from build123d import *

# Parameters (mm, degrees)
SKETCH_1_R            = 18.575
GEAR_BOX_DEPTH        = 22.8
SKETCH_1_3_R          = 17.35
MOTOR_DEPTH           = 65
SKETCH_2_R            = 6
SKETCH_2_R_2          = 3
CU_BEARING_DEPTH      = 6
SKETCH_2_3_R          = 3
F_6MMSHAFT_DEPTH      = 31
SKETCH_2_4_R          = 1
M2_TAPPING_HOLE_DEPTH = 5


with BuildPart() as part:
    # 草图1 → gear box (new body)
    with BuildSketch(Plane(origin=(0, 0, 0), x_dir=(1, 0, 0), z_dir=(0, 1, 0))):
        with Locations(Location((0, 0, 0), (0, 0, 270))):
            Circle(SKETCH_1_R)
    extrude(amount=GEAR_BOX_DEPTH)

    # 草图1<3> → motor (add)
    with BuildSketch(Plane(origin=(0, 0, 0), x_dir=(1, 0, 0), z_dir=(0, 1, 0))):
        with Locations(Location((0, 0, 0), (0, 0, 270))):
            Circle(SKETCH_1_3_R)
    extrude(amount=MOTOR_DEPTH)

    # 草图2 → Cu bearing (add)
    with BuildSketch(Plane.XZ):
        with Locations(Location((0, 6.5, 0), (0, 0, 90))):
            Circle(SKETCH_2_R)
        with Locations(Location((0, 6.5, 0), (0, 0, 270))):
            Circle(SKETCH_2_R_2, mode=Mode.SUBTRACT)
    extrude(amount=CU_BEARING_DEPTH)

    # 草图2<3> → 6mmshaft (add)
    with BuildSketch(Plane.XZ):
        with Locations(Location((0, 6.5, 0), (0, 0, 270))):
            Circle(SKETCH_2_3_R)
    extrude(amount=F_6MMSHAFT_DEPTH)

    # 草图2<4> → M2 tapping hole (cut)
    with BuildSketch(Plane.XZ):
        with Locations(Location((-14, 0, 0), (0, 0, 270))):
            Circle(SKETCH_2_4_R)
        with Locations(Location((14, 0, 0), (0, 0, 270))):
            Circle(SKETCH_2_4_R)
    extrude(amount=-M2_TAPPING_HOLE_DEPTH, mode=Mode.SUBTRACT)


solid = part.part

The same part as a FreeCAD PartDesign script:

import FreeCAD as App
import Part
import Sketcher
from FreeCAD import Vector

doc = App.newDocument("Part")
body = doc.addObject("PartDesign::Body", "Body")

# Sketch on XZ plane
sketch1 = body.newObject("Sketcher::SketchObject", "Sketch")
sketch1.AttachmentSupport = (doc.getObject("XZ_Plane"), [""])
sketch1.MapMode = "FlatFace"
sketch1.addGeometry(Part.Circle(Vector(0, 0, 0), Vector(0, 0, 1), 18.575), False)
sketch1.addConstraint([
    Sketcher.Constraint("Coincident", 0, 3, -1, 1),
    Sketcher.Constraint("Diameter", 0, 37.15),
])
pad1 = body.newObject("PartDesign::Pad", "Pad")
pad1.Profile = sketch1
pad1.Length = 22.8
pad1.Reversed = True

# Sketch on XZ plane
sketch2 = body.newObject("Sketcher::SketchObject", "Sketch001")
sketch2.AttachmentSupport = (doc.getObject("XZ_Plane"), [""])
sketch2.MapMode = "FlatFace"
sketch2.addGeometry(Part.Circle(Vector(0, 0, 0), Vector(0, 0, 1), 17.35), False)
sketch2.addConstraint([
    Sketcher.Constraint("Coincident", 0, 3, -1, 1),
    Sketcher.Constraint("Diameter", 0, 34.7),
])
pad2 = body.newObject("PartDesign::Pad", "Pad001")
pad2.Profile = sketch2
pad2.Length = 65
pad2.Reversed = True

# Sketch on XZ plane
sketch3 = body.newObject("Sketcher::SketchObject", "Sketch002")
sketch3.AttachmentSupport = (doc.getObject("XZ_Plane"), [""])
sketch3.MapMode = "FlatFace"
sketch3.addGeometry([
    Part.Circle(Vector(0, 6.5, 0), Vector(0, 0, 1), 6),
    Part.Circle(Vector(0, 6.5, 0), Vector(0, 0, 1), 3),
], False)
sketch3.addConstraint([
    Sketcher.Constraint("Coincident", 1, 3, 0, 3),
    Sketcher.Constraint("PointOnObject", 0, 3, -2),
    Sketcher.Constraint("Diameter", 0, 12.0),
    Sketcher.Constraint("Diameter", 1, 6.0),
    Sketcher.Constraint("DistanceY", -1, 1, 0, 3, 6.5),
])
pad3 = body.newObject("PartDesign::Pad", "Pad002")
pad3.Profile = sketch3
pad3.Length = 6

# Sketch on XZ plane
sketch4 = body.newObject("Sketcher::SketchObject", "Sketch003")
sketch4.AttachmentSupport = (doc.getObject("XZ_Plane"), [""])
sketch4.MapMode = "FlatFace"
sketch4.addGeometry(Part.Circle(Vector(0, 6.5, 0), Vector(0, 0, 1), 3), False)
sketch4.addConstraint([
    Sketcher.Constraint("PointOnObject", 0, 3, -2),
    Sketcher.Constraint("Diameter", 0, 6.0),
    Sketcher.Constraint("DistanceY", -1, 1, 0, 3, 6.5),
])
pad4 = body.newObject("PartDesign::Pad", "Pad003")
pad4.Profile = sketch4
pad4.Length = 31

# Sketch on XZ plane
sketch5 = body.newObject("Sketcher::SketchObject", "Sketch004")
sketch5.AttachmentSupport = (doc.getObject("XZ_Plane"), [""])
sketch5.MapMode = "FlatFace"
sketch5.addGeometry([
    Part.Circle(Vector(-14, 0, 0), Vector(0, 0, 1), 1),
    Part.Circle(Vector(14, 0, 0), Vector(0, 0, 1), 1),
], False)
sketch5.addConstraint([
    Sketcher.Constraint("Equal", 0, 1),
    Sketcher.Constraint("Symmetric", 0, 3, 1, 3, -1, 1),
    Sketcher.Constraint("PointOnObject", 0, 3, -1),
    Sketcher.Constraint("Diameter", 0, 2.0),
    Sketcher.Constraint("DistanceX", 0, 3, -1, 1, 14.0),
])
pocket1 = body.newObject("PartDesign::Pocket", "Pocket")
pocket1.Profile = sketch5
pocket1.Length = 5

doc.recompute()
